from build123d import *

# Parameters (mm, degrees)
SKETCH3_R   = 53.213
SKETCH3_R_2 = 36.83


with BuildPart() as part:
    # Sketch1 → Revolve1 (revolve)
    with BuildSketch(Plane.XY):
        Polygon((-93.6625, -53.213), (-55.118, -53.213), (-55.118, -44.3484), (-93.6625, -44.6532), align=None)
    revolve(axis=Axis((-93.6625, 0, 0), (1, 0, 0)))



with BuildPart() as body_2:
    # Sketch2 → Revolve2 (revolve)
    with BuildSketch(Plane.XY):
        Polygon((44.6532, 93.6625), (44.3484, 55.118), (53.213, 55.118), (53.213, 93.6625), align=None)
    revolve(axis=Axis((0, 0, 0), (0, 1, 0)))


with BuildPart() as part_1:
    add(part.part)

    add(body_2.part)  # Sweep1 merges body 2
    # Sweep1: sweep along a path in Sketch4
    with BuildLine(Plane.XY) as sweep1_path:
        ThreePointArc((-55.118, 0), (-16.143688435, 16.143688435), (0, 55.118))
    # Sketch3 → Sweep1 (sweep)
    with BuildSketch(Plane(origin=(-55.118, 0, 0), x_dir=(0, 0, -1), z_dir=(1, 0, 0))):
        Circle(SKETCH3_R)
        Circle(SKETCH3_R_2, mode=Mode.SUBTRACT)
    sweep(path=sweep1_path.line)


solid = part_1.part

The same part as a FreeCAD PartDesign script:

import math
import FreeCAD as App
import Part
import Sketcher

V = App.Vector
Q = App.Units.Quantity

doc = App.newDocument("Part")
body = doc.addObject("PartDesign::Body", "Body")

# Sketch on XY plane
sketch1 = body.newObject("Sketcher::SketchObject", "Sketch")
sketch1.AttachmentSupport = (doc.getObject("XY_Plane"), [""])
sketch1.MapMode = "FlatFace"
sketch1.addGeometry([
    Part.LineSegment(V(-94, -53, 0), V(-55, -53, 0)),
    Part.LineSegment(V(-55, -53, 0), V(-55, -44, 0)),
    Part.LineSegment(V(-55, -44, 0), V(-94, -45, 0)),
    Part.LineSegment(V(-94, -45, 0), V(-94, -53, 0)),
], False)
sketch1.addConstraint([
    Sketcher.Constraint("Coincident", 0, 2, 1, 1),
    Sketcher.Constraint("Coincident", 1, 2, 2, 1),
    Sketcher.Constraint("Coincident", 2, 2, 3, 1),
    Sketcher.Constraint("Coincident", 3, 2, 0, 1),
    Sketcher.Constraint("Horizontal", 0),
    Sketcher.Constraint("Vertical", 1),
    Sketcher.Constraint("Vertical", 3),
    Sketcher.Constraint("DistanceY", 1, 1, 1, 2, Q("0.349 in")),
    Sketcher.Constraint("DistanceY", 3, 2, 3, 1, Q("0.337 in")),
    Sketcher.Constraint("DistanceX", 0, 2, -1, 1, Q("2.17 in")),
    Sketcher.Constraint("DistanceX", 0, 1, 0, 2, Q("1.5175 in")),
    Sketcher.Constraint("DistanceY", 0, 2, -1, 1, Q("2.095 in")),
])
revolution = body.newObject("PartDesign::Revolution", "Revolution")
revolution.Profile = sketch1
revolution.ReferenceAxis = (sketch1, ["H_Axis"])
revolution.Angle = 360
body2 = doc.addObject("PartDesign::Body", "Body001")

# Sketch on XY plane
sketch2 = body2.newObject("Sketcher::SketchObject", "Sketch001")
sketch2.AttachmentSupport = (doc.getObject("XY_Plane001"), [""])
sketch2.MapMode = "FlatFace"
sketch2.addGeometry([
    Part.LineSegment(V(45, 94, 0), V(44, 55, 0)),
    Part.LineSegment(V(44, 55, 0), V(53, 55, 0)),
    Part.LineSegment(V(53, 55, 0), V(53, 94, 0)),
    Part.LineSegment(V(53, 94, 0), V(45, 94, 0)),
], False)
sketch2.addConstraint([
    Sketcher.Constraint("Coincident", 0, 2, 1, 1),
    Sketcher.Constraint("Coincident", 1, 2, 2, 1),
    Sketcher.Constraint("Coincident", 2, 2, 3, 1),
    Sketcher.Constraint("Coincident", 3, 2, 0, 1),
    Sketcher.Constraint("Horizontal", 1),
    Sketcher.Constraint("Vertical", 2),
    Sketcher.Constraint("Horizontal", 3),
    Sketcher.Constraint("DistanceX", 1, 1, 1, 2, Q("0.349 in")),
    Sketcher.Constraint("DistanceX", 3, 2, 3, 1, Q("0.337 in")),
    Sketcher.Constraint("DistanceY", -1, 1, 0, 2, Q("2.17 in")),
    Sketcher.Constraint("DistanceY", 2, 1, 2, 2, Q("1.5175 in")),
    Sketcher.Constraint("DistanceX", -1, 1, 0, 2, Q("1.746 in")),
])
revolution2 = body2.newObject("PartDesign::Revolution", "Revolution001")
revolution2.Profile = sketch2
revolution2.ReferenceAxis = (sketch2, ["V_Axis"])
revolution2.Angle = 360
body.AllowCompound = True
doc.recompute()

boolean = body.newObject("PartDesign::Boolean", "Boolean")
boolean.Type = "Fuse"
boolean.addObjects([body2])

# Sketch on YZ plane
sketch3 = body.newObject("Sketcher::SketchObject", "Sketch002")
sketch3.AttachmentSupport = (doc.getObject("YZ_Plane"), [""])
sketch3.MapMode = "FlatFace"
sketch3.AttachmentOffset = App.Placement(V(0, 0, -2.17 * 25.4), App.Rotation())
sketch3.addGeometry([
    Part.Circle(V(0, 0, 0), V(0, 0, 1), 53),
    Part.Circle(V(0, 0, 0), V(0, 0, 1), 37),
], False)
sketch3.addConstraint([
    Sketcher.Constraint("Coincident", 0, 3, -1, 1),
    Sketcher.Constraint("Coincident", 1, 3, -1, 1),
    Sketcher.Constraint("Diameter", 1, Q("2.9 in")),
    Sketcher.Constraint("Diameter", 0, Q("4.19 in")),
])

# Sketch on XY plane
sketch4 = body.newObject("Sketcher::SketchObject", "Sketch003")
sketch4.AttachmentSupport = (doc.getObject("XY_Plane"), [""])
sketch4.MapMode = "FlatFace"
sketch4.addGeometry(Part.ArcOfCircle(Part.Circle(V(-55, 55, 0), V(0, 0, 1), 55), math.radians(-90), math.radians(0)), False)
sketch4.addConstraint([
    Sketcher.Constraint("PointOnObject", 0, 1, -1),
    Sketcher.Constraint("PointOnObject", 0, 2, -2),
    Sketcher.Constraint("Radius", 0, Q("2.17 in")),
    Sketcher.Constraint("DistanceX", 0, 1, -1, 1, Q("2.17 in")),
    Sketcher.Constraint("DistanceY", -1, 1, 0, 2, Q("2.17 in")),
])
doc.recompute()

additivepipe = body.newObject("PartDesign::AdditivePipe", "AdditivePipe")
additivepipe.Profile = sketch3
additivepipe.Spine = (sketch4, ["Edge1"])

doc.recompute()
